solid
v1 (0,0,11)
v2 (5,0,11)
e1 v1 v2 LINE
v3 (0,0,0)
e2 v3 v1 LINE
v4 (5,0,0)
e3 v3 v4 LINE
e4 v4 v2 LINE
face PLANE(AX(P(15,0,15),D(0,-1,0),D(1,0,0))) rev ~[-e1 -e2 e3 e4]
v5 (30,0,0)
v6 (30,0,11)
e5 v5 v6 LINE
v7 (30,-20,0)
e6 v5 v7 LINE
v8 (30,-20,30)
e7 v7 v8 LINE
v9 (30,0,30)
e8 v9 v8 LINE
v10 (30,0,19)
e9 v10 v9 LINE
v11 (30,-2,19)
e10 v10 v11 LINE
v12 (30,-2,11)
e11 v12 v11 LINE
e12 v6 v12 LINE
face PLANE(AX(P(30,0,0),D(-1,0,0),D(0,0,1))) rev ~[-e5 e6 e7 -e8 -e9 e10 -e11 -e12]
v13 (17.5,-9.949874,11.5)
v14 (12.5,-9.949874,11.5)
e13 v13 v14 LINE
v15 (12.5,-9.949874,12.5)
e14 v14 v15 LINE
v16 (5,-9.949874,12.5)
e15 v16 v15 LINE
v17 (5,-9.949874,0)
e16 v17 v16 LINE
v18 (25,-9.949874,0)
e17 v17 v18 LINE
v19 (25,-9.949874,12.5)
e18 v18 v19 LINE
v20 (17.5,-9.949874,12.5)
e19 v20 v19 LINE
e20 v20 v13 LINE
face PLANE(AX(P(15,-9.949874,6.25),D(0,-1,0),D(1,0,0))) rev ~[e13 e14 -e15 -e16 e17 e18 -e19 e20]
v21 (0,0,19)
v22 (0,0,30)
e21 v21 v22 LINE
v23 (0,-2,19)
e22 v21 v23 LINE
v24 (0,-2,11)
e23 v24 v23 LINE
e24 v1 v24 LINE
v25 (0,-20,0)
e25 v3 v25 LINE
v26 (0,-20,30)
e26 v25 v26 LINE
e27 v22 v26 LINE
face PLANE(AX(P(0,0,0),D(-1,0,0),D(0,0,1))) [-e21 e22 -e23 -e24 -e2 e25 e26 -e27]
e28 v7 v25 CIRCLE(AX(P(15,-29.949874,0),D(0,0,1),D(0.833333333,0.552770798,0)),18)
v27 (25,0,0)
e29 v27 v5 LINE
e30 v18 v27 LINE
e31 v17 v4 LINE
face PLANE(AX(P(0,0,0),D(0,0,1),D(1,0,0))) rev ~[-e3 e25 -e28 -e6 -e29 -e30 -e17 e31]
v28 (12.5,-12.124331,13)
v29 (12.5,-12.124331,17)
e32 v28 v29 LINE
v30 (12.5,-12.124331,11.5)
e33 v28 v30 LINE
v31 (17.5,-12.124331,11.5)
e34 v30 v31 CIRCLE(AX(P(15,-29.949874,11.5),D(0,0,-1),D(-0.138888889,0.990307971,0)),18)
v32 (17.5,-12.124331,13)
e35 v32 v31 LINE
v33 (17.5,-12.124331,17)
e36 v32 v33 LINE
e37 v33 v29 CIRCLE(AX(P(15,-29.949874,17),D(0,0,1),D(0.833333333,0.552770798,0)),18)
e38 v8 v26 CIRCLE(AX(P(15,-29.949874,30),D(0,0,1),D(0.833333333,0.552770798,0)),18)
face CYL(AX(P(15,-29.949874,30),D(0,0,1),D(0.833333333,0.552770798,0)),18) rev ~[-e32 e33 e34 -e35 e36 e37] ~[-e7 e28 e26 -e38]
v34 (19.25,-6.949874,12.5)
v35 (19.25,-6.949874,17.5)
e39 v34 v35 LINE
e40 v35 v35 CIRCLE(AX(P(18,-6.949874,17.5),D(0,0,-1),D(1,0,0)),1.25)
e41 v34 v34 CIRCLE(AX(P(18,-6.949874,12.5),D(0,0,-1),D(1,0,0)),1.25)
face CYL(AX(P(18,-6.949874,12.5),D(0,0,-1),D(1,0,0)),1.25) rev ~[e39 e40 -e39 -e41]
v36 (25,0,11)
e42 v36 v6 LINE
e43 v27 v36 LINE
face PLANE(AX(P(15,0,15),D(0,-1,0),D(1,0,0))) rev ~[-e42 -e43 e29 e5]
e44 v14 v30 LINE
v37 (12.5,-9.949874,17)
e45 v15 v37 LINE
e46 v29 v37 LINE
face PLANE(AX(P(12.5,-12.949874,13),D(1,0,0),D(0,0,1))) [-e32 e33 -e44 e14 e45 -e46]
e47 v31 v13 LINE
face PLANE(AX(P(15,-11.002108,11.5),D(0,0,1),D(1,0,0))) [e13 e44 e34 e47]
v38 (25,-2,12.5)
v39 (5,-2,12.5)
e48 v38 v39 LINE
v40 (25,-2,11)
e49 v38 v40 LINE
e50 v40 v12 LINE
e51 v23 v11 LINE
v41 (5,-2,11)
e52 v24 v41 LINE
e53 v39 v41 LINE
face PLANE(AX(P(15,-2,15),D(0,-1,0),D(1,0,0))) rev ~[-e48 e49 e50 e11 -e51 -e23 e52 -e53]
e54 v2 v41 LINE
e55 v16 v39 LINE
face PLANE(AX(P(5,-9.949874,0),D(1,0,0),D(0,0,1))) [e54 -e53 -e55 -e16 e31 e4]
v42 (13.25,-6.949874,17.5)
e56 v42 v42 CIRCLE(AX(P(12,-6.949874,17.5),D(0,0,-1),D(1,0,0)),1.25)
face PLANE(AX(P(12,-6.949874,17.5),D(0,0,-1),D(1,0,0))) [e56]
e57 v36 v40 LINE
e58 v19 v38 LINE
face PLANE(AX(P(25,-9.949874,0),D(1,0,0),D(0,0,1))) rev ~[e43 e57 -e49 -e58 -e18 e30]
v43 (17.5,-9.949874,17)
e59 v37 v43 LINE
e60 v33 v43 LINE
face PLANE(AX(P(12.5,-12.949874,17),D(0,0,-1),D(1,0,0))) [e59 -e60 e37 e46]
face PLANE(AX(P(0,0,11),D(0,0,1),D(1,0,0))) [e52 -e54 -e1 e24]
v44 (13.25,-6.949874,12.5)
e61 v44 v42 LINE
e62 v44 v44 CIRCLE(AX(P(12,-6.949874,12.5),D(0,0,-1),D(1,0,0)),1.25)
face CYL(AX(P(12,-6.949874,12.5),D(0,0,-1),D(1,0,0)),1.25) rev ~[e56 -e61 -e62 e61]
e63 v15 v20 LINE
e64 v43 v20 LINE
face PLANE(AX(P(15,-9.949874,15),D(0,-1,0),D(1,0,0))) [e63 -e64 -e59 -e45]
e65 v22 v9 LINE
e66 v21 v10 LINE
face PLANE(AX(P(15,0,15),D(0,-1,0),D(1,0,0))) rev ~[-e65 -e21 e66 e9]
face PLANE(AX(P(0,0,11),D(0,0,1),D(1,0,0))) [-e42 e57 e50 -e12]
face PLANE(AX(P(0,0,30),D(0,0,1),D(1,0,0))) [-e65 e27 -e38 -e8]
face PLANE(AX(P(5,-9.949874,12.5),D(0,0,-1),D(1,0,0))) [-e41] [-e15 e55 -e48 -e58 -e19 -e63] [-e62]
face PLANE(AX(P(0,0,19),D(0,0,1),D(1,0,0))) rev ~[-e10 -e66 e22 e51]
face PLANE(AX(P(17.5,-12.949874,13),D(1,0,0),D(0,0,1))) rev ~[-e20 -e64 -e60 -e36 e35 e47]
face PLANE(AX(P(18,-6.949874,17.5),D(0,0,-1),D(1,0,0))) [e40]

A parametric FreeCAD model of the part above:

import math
import FreeCAD as App
import Part
import Sketcher


def add_polygon(sketch, points):
    """Adds a closed chain of lines whose ends are joined by coincident constraints."""
    first, n = sketch.GeometryCount, len(points)
    for a, b in zip(points, points[1:] + points[:1]):
        sketch.addGeometry(Part.LineSegment(App.Vector(*a, 0), App.Vector(*b, 0)), False)
    for i in range(n):
        sketch.addConstraint(Sketcher.Constraint("Coincident", first + i, 2, first + (i + 1) % n, 1))

doc = App.newDocument("Part")
body = doc.addObject("PartDesign::Body", "Body")

# Sketch on XZ plane
sketch1 = body.newObject("Sketcher::SketchObject", "Sketch")
sketch1.AttachmentSupport = (doc.getObject("XZ_Plane"), [""])
sketch1.MapMode = "FlatFace"
add_polygon(sketch1, [(0, 30), (0, 0), (30, 0), (30, 30)])  # lines 0-3
sketch1.addConstraint([
    Sketcher.Constraint("Vertical", 0),
    Sketcher.Constraint("Horizontal", 1),
    Sketcher.Constraint("Vertical", 2),
    Sketcher.Constraint("Horizontal", 3),
    Sketcher.Constraint("Coincident", 0, 2, -1, 1),
    Sketcher.Constraint("Equal", 3, 0),
    Sketcher.Constraint("DistanceX", 1, 1, 1, 2, 30.0),
])
pad1 = body.newObject("PartDesign::Pad", "Pad")
pad1.Profile = sketch1
pad1.Length = 20

# Sketch on XY plane
sketch2 = body.newObject("Sketcher::SketchObject", "Sketch001")
sketch2.AttachmentSupport = (doc.getObject("XY_Plane"), [""])
sketch2.MapMode = "FlatFace"
sketch2.AttachmentOffset = App.Placement(App.Vector(0, 0, 30), App.Rotation())
sketch2.addGeometry([
    Part.LineSegment(App.Vector(0, -20, 0), App.Vector(30, -20, 0)),
    Part.ArcOfCircle(Part.Circle(App.Vector(15, -29.949874, 0), App.Vector(0, 0, 1), 18), math.radians(33.55731), math.radians(146.44269)),
], False)
sketch2.addConstraint([
    Sketcher.Constraint("Coincident", 0, 1, 1, 2),
    Sketcher.Constraint("Coincident", 1, 1, 0, 2),
    Sketcher.Constraint("Horizontal", 0),
    Sketcher.Constraint("PointOnObject", 0, 1, -2),
    Sketcher.Constraint("Radius", 1, 18.0),
    Sketcher.Constraint("DistanceX", 0, 1, 0, 2, 30.0),
    Sketcher.Constraint("DistanceY", 0, 1, -1, 1, 20.0),
])
pocket1 = body.newObject("PartDesign::Pocket", "Pocket")
pocket1.Profile = sketch2
pocket1.Type = "ThroughAll"

# Sketch on XZ plane
sketch3 = body.newObject("Sketcher::SketchObject", "Sketch002")
sketch3.AttachmentSupport = (doc.getObject("XZ_Plane"), [""])
sketch3.MapMode = "FlatFace"
sketch3.AttachmentOffset = App.Placement(App.Vector(0, 0, 12.949874), App.Rotation())
add_polygon(sketch3, [(12.5, 17), (12.5, 13), (17.5, 13), (17.5, 17)])  # lines 0-3
sketch3.addConstraint([
    Sketcher.Constraint("Vertical", 0),
    Sketcher.Constraint("Horizontal", 1),
    Sketcher.Constraint("Vertical", 2),
    Sketcher.Constraint("Horizontal", 3),
    Sketcher.Constraint("DistanceX", 1, 1, 1, 2, 5.0),
    Sketcher.Constraint("DistanceY", 0, 2, 0, 1, 4.0),
    Sketcher.Constraint("DistanceY", -1, 1, 0, 2, 13.0),
    Sketcher.Constraint("DistanceX", -1, 1, 0, 2, 12.5),
])
pocket2 = body.newObject("PartDesign::Pocket", "Pocket001")
pocket2.Profile = sketch3
pocket2.Length = 3

# Sketch on XY plane
sketch4 = body.newObject("Sketcher::SketchObject", "Sketch003")
sketch4.AttachmentSupport = (doc.getObject("XY_Plane"), [""])
sketch4.MapMode = "FlatFace"
sketch4.AttachmentOffset = App.Placement(App.Vector(0, 0, 13), App.Rotation())
sketch4.addGeometry([
    Part.ArcOfCircle(Part.Circle(App.Vector(15, -29.949874, 0), App.Vector(0, 0, 1), 18), math.radians(82.016444), math.radians(97.983556)),
    Part.LineSegment(App.Vector(17.5, -12.124331, 0), App.Vector(17.5, -9.949874, 0)),
    Part.LineSegment(App.Vector(17.5, -9.949874, 0), App.Vector(12.5, -9.949874, 0)),
    Part.LineSegment(App.Vector(12.5, -9.949874, 0), App.Vector(12.5, -12.124331, 0)),
], False)
sketch4.addConstraint([
    Sketcher.Constraint("Coincident", 0, 1, 1, 1),
    Sketcher.Constraint("Coincident", 1, 2, 2, 1),
    Sketcher.Constraint("Coincident", 2, 2, 3, 1),
    Sketcher.Constraint("Coincident", 3, 2, 0, 2),
    Sketcher.Constraint("Vertical", 1),
    Sketcher.Constraint("Horizontal", 2),
    Sketcher.Constraint("Vertical", 3),
    Sketcher.Constraint("Horizontal", 0, 1, 3, 2),
    Sketcher.Constraint("Radius", 0, 18.0),
    Sketcher.Constraint("DistanceX", 2, 2, 2, 1, 5.0),
    Sketcher.Constraint("DistanceX", -1, 1, 0, 3, 15.0),
    Sketcher.Constraint("DistanceY", 0, 3, 1, 2, 20.0),
    Sketcher.Constraint("DistanceY", 0, 1, -1, 1, 12.124331),
])
pocket3 = body.newObject("PartDesign::Pocket", "Pocket002")
pocket3.Profile = sketch4
pocket3.Length = 1.5

# Sketch on XZ plane
sketch5 = body.newObject("Sketcher::SketchObject", "Sketch004")
sketch5.AttachmentSupport = (doc.getObject("XZ_Plane"), [""])
sketch5.MapMode = "FlatFace"
sketch5.AttachmentOffset = App.Placement(App.Vector(0, 0, 9.949874), App.Rotation())
add_polygon(sketch5, [(5, 12.5), (5, 0), (25, 0), (25, 12.5)])  # lines 0-3
sketch5.addConstraint([
    Sketcher.Constraint("Vertical", 0),
    Sketcher.Constraint("Horizontal", 1),
    Sketcher.Constraint("Vertical", 2),
    Sketcher.Constraint("Horizontal", 3),
    Sketcher.Constraint("PointOnObject", 0, 2, -1),
    Sketcher.Constraint("DistanceX", 1, 1, 1, 2, 20.0),
    Sketcher.Constraint("DistanceY", 0, 2, 0, 1, 12.5),
    Sketcher.Constraint("DistanceX", -1, 1, 0, 2, 5.0),
])
pocket4 = body.newObject("PartDesign::Pocket", "Pocket003")
pocket4.Profile = sketch5
pocket4.Type = "ThroughAll"

# Sketch on XZ plane
sketch6 = body.newObject("Sketcher::SketchObject", "Sketch005")
sketch6.AttachmentSupport = (doc.getObject("XZ_Plane"), [""])
sketch6.MapMode = "FlatFace"
add_polygon(sketch6, [(0, 19), (0, 11), (30, 11), (30, 19)])  # lines 0-3
sketch6.addConstraint([
    Sketcher.Constraint("Vertical", 0),
    Sketcher.Constraint("Horizontal", 1),
    Sketcher.Constraint("Vertical", 2),
    Sketcher.Constraint("Horizontal", 3),
    Sketcher.Constraint("PointOnObject", 0, 2, -2),
    Sketcher.Constraint("DistanceX", 1, 1, 1, 2, 30.0),
    Sketcher.Constraint("DistanceY", 0, 2, 0, 1, 8.0),
    Sketcher.Constraint("DistanceY", -1, 1, 0, 2, 11.0),
])
pocket5 = body.newObject("PartDesign::Pocket", "Pocket004")
pocket5.Profile = sketch6
pocket5.Length = 2
pocket5.Reversed = True

# Sketch on XY plane
sketch7 = body.newObject("Sketcher::SketchObject", "Sketch006")
sketch7.AttachmentSupport = (doc.getObject("XY_Plane"), [""])
sketch7.MapMode = "FlatFace"
sketch7.AttachmentOffset = App.Placement(App.Vector(0, 0, 12.5), App.Rotation())
sketch7.addGeometry([
    Part.Circle(App.Vector(18, -6.949874, 0), App.Vector(0, 0, 1), 1.25),
    Part.Circle(App.Vector(12, -6.949874, 0), App.Vector(0, 0, 1), 1.25),
], False)
sketch7.addConstraint([
    Sketcher.Constraint("Equal", 0, 1),
    Sketcher.Constraint("Horizontal", 0, 3, 1, 3),
    Sketcher.Constraint("Diameter", 0, 2.5),
    Sketcher.Constraint("DistanceX", -1, 1, 0, 3, 18.0),
    Sketcher.Constraint("DistanceX", -1, 1, 1, 3, 12.0),
    Sketcher.Constraint("DistanceY", 0, 3, -1, 1, 6.949874),
])
pocket6 = body.newObject("PartDesign::Pocket", "Pocket005")
pocket6.Profile = sketch7
pocket6.Length = 5
pocket6.Reversed = True

doc.recompute()
